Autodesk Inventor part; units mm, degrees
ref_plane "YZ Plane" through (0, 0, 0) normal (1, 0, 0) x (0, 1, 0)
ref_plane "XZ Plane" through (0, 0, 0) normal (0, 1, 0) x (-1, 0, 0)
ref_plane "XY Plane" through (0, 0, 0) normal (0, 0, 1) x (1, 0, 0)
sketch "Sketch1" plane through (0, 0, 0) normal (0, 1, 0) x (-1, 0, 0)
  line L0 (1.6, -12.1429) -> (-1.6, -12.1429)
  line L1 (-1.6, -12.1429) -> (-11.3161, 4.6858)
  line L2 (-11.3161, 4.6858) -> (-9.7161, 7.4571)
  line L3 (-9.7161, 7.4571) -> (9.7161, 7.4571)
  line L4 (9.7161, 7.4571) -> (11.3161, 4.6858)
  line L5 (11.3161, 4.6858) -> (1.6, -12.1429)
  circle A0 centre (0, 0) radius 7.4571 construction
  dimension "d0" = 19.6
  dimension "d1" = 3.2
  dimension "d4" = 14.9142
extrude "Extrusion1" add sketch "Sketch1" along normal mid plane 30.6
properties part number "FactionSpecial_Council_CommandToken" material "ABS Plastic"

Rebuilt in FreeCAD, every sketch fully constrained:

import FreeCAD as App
import Part
import Sketcher
from FreeCAD import Vector
Q = App.Units.Quantity

doc = App.newDocument("Part")
body = doc.addObject("PartDesign::Body", "Body")

# Sketch on XZ plane
sketch1 = body.newObject("Sketcher::SketchObject", "Sketch")
sketch1.AttachmentSupport = (doc.getObject("XZ_Plane"), [""])
sketch1.MapMode = "FlatFace"
sketch1.addGeometry(Part.LineSegment(Vector(1.6, -12.1429, 0), Vector(-1.6, -12.1429, 0)), False)
sketch1.addGeometry(Part.LineSegment(Vector(-1.6, -12.1429, 0), Vector(-11.3161, 4.6858, 0)), False)
sketch1.addGeometry(Part.LineSegment(Vector(-11.3161, 4.6858, 0), Vector(-9.7161, 7.4571, 0)), False)
sketch1.addGeometry(Part.LineSegment(Vector(-9.7161, 7.4571, 0), Vector(9.7161, 7.4571, 0)), False)
sketch1.addGeometry(Part.LineSegment(Vector(9.7161, 7.4571, 0), Vector(11.3161, 4.6858, 0)), False)
sketch1.addGeometry(Part.LineSegment(Vector(11.3161, 4.6858, 0), Vector(1.6, -12.1429, 0)), False)
sketch1.addConstraint(Sketcher.Constraint("Coincident", 0, 2, 1, 1))
sketch1.addConstraint(Sketcher.Constraint("Coincident", 1, 2, 2, 1))
sketch1.addConstraint(Sketcher.Constraint("Coincident", 2, 2, 3, 1))
sketch1.addConstraint(Sketcher.Constraint("Coincident", 3, 2, 4, 1))
sketch1.addConstraint(Sketcher.Constraint("Coincident", 4, 2, 5, 1))
sketch1.addConstraint(Sketcher.Constraint("Coincident", 5, 2, 0, 1))
sketch1.addConstraint(Sketcher.Constraint("Horizontal", 0))
sketch1.addConstraint(Sketcher.Constraint("Horizontal", 3))
sketch1.addConstraint(Sketcher.Constraint("Symmetric", 1, 2, 4, 2, -2))
sketch1.addConstraint(Sketcher.Constraint("Parallel", 1, 4))
sketch1.addConstraint(Sketcher.Constraint("Parallel", 2, 5))
sketch1.addConstraint(Sketcher.Constraint("Equal", 2, 4))
sketch1.addConstraint(Sketcher.Constraint("DistanceX", 0, 2, 0, 1, Q("3.2 mm")))
sketch1.addConstraint(Sketcher.Constraint("Distance", 2, Q("3.2 mm")))
sketch1.addConstraint(Sketcher.Constraint("DistanceY", 0, 2, 2, 2, Q("19.6 mm")))
sketch1.addConstraint(Sketcher.Constraint("Angle", 1, Q("120 deg")))
sketch1.addConstraint(Sketcher.Constraint("DistanceY", 0, 2, -1, 1, Q("12.143 mm")))
pad1 = body.newObject("PartDesign::Pad", "Pad")
pad1.Profile = sketch1
pad1.Length = 30.6
pad1.Midplane = True

doc.recompute()
